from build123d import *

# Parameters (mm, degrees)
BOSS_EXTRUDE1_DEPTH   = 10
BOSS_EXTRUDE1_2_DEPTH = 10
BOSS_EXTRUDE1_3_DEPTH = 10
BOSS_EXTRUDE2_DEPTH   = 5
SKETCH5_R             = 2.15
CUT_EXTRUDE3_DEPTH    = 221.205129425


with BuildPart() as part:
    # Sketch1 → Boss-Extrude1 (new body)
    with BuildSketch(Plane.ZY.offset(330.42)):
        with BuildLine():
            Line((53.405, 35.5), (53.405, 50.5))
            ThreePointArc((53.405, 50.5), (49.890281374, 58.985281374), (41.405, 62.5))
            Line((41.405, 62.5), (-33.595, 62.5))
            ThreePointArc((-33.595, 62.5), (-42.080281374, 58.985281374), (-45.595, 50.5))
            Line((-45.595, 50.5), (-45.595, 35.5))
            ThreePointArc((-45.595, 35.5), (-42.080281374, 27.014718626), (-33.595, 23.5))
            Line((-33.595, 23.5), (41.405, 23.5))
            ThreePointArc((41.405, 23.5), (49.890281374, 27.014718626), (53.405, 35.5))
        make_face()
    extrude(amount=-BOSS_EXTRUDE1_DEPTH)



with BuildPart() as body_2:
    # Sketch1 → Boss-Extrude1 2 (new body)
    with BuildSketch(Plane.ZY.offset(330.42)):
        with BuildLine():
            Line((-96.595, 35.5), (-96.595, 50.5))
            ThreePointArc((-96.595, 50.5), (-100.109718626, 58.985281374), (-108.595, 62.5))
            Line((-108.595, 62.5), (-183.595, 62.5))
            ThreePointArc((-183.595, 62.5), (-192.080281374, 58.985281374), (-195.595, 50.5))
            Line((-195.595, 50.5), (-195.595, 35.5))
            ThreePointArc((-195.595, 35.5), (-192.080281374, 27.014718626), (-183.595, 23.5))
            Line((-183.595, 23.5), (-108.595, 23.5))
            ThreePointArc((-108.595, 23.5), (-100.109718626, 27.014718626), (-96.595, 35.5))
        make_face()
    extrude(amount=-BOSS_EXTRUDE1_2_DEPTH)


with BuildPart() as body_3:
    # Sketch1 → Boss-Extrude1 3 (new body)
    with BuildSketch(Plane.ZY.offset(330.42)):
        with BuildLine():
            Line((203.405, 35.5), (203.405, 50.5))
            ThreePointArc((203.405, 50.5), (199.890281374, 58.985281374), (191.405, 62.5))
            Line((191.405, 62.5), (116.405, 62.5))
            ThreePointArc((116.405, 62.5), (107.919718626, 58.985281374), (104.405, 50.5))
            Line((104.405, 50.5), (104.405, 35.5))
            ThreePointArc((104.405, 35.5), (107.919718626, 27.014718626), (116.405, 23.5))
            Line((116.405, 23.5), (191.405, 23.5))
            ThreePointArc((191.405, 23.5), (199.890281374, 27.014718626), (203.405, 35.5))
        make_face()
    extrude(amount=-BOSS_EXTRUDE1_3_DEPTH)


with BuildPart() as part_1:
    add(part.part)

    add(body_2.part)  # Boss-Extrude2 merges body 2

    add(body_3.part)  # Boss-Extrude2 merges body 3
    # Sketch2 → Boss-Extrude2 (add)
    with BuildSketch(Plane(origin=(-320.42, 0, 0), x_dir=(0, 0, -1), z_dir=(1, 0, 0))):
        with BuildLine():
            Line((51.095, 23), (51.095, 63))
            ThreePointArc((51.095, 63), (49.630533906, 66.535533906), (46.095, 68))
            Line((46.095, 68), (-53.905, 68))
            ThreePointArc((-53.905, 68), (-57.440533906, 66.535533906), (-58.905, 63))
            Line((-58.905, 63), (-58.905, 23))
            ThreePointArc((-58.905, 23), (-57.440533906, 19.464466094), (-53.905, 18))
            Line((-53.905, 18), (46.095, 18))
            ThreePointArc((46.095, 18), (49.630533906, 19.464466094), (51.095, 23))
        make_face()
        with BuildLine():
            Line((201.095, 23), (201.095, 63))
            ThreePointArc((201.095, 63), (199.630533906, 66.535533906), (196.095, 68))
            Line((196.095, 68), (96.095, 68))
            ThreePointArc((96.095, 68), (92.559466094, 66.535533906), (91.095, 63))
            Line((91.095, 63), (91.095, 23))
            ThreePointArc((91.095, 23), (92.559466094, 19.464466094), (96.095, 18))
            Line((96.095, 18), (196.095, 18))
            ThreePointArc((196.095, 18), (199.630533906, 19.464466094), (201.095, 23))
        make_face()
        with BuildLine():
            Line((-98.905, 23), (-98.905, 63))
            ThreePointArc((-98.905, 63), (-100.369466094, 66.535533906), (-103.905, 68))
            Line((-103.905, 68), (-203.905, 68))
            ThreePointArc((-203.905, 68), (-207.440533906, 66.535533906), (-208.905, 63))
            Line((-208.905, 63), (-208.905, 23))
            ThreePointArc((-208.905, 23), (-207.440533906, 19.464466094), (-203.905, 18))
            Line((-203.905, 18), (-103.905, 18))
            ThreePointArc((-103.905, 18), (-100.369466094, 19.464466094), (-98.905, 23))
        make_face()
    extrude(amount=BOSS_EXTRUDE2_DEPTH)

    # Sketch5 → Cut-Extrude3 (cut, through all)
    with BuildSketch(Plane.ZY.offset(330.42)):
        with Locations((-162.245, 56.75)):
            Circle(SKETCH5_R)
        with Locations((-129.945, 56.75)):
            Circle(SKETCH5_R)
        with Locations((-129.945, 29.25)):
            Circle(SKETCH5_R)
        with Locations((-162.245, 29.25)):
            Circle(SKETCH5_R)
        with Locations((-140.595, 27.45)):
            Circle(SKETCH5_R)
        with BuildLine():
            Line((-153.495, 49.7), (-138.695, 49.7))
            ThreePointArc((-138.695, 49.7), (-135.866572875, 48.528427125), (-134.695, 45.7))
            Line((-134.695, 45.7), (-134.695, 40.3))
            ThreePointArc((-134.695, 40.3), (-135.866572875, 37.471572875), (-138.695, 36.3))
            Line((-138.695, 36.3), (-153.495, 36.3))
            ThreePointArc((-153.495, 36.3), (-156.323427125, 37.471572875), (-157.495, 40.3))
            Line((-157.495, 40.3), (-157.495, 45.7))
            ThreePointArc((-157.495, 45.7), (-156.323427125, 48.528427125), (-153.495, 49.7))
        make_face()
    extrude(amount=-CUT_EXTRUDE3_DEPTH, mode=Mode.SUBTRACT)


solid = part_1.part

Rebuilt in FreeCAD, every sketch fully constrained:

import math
import FreeCAD as App
import Part
import Sketcher
Q = App.Units.Quantity

doc = App.newDocument("Part")
params = doc.addObject("Spreadsheet::Sheet", "Params")
for row, (alias, value) in enumerate([
    ("sketch1_radius", "12 mm"),
    ("sketch1_width", "15 mm"),
    ("sketch1_height", "75 mm"),
    ("pad1_length", "10 mm"),
    ("sketch2_radius", "12 mm"),
    ("sketch2_width", "15 mm"),
    ("sketch2_height", "75 mm"),
    ("pad2_length", "10 mm"),
    ("sketch3_radius", "12 mm"),
    ("sketch3_width", "15 mm"),
    ("sketch3_height", "75 mm"),
    ("pad3_length", "10 mm"),
    ("sketch4_radius", "5 mm"),
    ("sketch4_width", "40 mm"),
    ("sketch4_height", "100 mm"),
    ("pad4_length", "5 mm"),
    ("sketch5_radius", "4 mm"),
    ("sketch5_diameter", "4.3 mm"),
    ("sketch5_width", "5.4 mm"),
    ("sketch5_height", "14.8 mm"),
], start=1):
    params.set(f"A{row}", alias)
    params.set(f"B{row}", "=" + value)
    params.setAlias(f"B{row}", alias)

body = doc.addObject("PartDesign::Body", "Body")

# Sketch on YZ plane
sketch1 = body.newObject("Sketcher::SketchObject", "Sketch")
sketch1.AttachmentSupport = (doc.getObject("YZ_Plane"), [""])
sketch1.MapMode = "FlatFace"
sketch1.AttachmentOffset = App.Placement(App.Vector(0, 0, -330.42), App.Rotation())
sketch1.addGeometry([
    Part.LineSegment(App.Vector(36, 53, 0), App.Vector(50, 53, 0)),  # 0
    Part.ArcOfCircle(Part.Circle(App.Vector(50, 41, 0), App.Vector(0, 0, 1), 12), math.radians(0), math.radians(90)),  # 1
    Part.LineSegment(App.Vector(62, 41, 0), App.Vector(62, -34, 0)),  # 2
    Part.ArcOfCircle(Part.Circle(App.Vector(50, -34, 0), App.Vector(0, 0, 1), 12), math.radians(-90), math.radians(0)),  # 3
    Part.LineSegment(App.Vector(50, -46, 0), App.Vector(36, -46, 0)),  # 4
    Part.ArcOfCircle(Part.Circle(App.Vector(36, -34, 0), App.Vector(0, 0, 1), 12), math.radians(-180), math.radians(-90)),  # 5
    Part.LineSegment(App.Vector(24, -34, 0), App.Vector(24, 41, 0)),  # 6
    Part.ArcOfCircle(Part.Circle(App.Vector(36, 41, 0), App.Vector(0, 0, 1), 12), math.radians(90), math.radians(180)),  # 7
], False)
sketch1.addConstraint([
    Sketcher.Constraint("Tangent", 0, 2, 1, 2),
    Sketcher.Constraint("Tangent", 1, 1, 2, 1),
    Sketcher.Constraint("Tangent", 2, 2, 3, 2),
    Sketcher.Constraint("Tangent", 3, 1, 4, 1),
    Sketcher.Constraint("Tangent", 4, 2, 5, 2),
    Sketcher.Constraint("Tangent", 5, 1, 6, 1),
    Sketcher.Constraint("Tangent", 6, 2, 7, 2),
    Sketcher.Constraint("Tangent", 7, 1, 0, 1),
    Sketcher.Constraint("Horizontal", 0),
    Sketcher.Constraint("Vertical", 2),
    Sketcher.Constraint("Horizontal", 4),
    Sketcher.Constraint("Vertical", 6),
    Sketcher.Constraint("Equal", 1, 3),
    Sketcher.Constraint("Equal", 3, 5),
    Sketcher.Constraint("Equal", 5, 7),
    Sketcher.Constraint("Radius", 1, Q("12 mm")),
    Sketcher.Constraint("DistanceX", 0, 1, 0, 2, Q("15 mm")),
    Sketcher.Constraint("DistanceY", 2, 2, 2, 1, Q("75 mm")),
    Sketcher.Constraint("DistanceX", -1, 1, 1, 3, Q("50.5 mm")),
    Sketcher.Constraint("DistanceY", -1, 1, 1, 3, Q("41.405 mm")),
])
sketch1.setExpression("Constraints[15]", "Params.sketch1_radius")
sketch1.setExpression("Constraints[16]", "Params.sketch1_width")
sketch1.setExpression("Constraints[17]", "Params.sketch1_height")
pad1 = body.newObject("PartDesign::Pad", "Pad")
pad1.Profile = sketch1
pad1.setExpression("Length", "Params.pad1_length")
body2 = doc.addObject("PartDesign::Body", "Body001")

# Sketch on YZ plane
sketch2 = body2.newObject("Sketcher::SketchObject", "Sketch001")
sketch2.AttachmentSupport = (doc.getObject("YZ_Plane001"), [""])
sketch2.MapMode = "FlatFace"
sketch2.AttachmentOffset = App.Placement(App.Vector(0, 0, -330.42), App.Rotation())
sketch2.addGeometry([
    Part.LineSegment(App.Vector(36, -97, 0), App.Vector(50, -97, 0)),  # 0
    Part.ArcOfCircle(Part.Circle(App.Vector(50, -109, 0), App.Vector(0, 0, 1), 12), math.radians(0), math.radians(90)),  # 1
    Part.LineSegment(App.Vector(62, -109, 0), App.Vector(62, -184, 0)),  # 2
    Part.ArcOfCircle(Part.Circle(App.Vector(50, -184, 0), App.Vector(0, 0, 1), 12), math.radians(-90), math.radians(0)),  # 3
    Part.LineSegment(App.Vector(50, -196, 0), App.Vector(36, -196, 0)),  # 4
    Part.ArcOfCircle(Part.Circle(App.Vector(36, -184, 0), App.Vector(0, 0, 1), 12), math.radians(-180), math.radians(-90)),  # 5
    Part.LineSegment(App.Vector(24, -184, 0), App.Vector(24, -109, 0)),  # 6
    Part.ArcOfCircle(Part.Circle(App.Vector(36, -109, 0), App.Vector(0, 0, 1), 12), math.radians(90), math.radians(180)),  # 7
], False)
sketch2.addConstraint([
    Sketcher.Constraint("Tangent", 0, 2, 1, 2),
    Sketcher.Constraint("Tangent", 1, 1, 2, 1),
    Sketcher.Constraint("Tangent", 2, 2, 3, 2),
    Sketcher.Constraint("Tangent", 3, 1, 4, 1),
    Sketcher.Constraint("Tangent", 4, 2, 5, 2),
    Sketcher.Constraint("Tangent", 5, 1, 6, 1),
    Sketcher.Constraint("Tangent", 6, 2, 7, 2),
    Sketcher.Constraint("Tangent", 7, 1, 0, 1),
    Sketcher.Constraint("Horizontal", 0),
    Sketcher.Constraint("Vertical", 2),
    Sketcher.Constraint("Horizontal", 4),
    Sketcher.Constraint("Vertical", 6),
    Sketcher.Constraint("Equal", 1, 3),
    Sketcher.Constraint("Equal", 3, 5),
    Sketcher.Constraint("Equal", 5, 7),
    Sketcher.Constraint("Radius", 1, Q("12 mm")),
    Sketcher.Constraint("DistanceX", 0, 1, 0, 2, Q("15 mm")),
    Sketcher.Constraint("DistanceY", 2, 2, 2, 1, Q("75 mm")),
    Sketcher.Constraint("DistanceX", -1, 1, 1, 3, Q("50.5 mm")),
    Sketcher.Constraint("DistanceY", 1, 3, -1, 1, Q("108.595 mm")),
])
sketch2.setExpression("Constraints[15]", "Params.sketch2_radius")
sketch2.setExpression("Constraints[16]", "Params.sketch2_width")
sketch2.setExpression("Constraints[17]", "Params.sketch2_height")
pad2 = body2.newObject("PartDesign::Pad", "Pad001")
pad2.Profile = sketch2
pad2.setExpression("Length", "Params.pad2_length")
body3 = doc.addObject("PartDesign::Body", "Body002")

# Sketch on YZ plane
sketch3 = body3.newObject("Sketcher::SketchObject", "Sketch002")
sketch3.AttachmentSupport = (doc.getObject("YZ_Plane002"), [""])
sketch3.MapMode = "FlatFace"
sketch3.AttachmentOffset = App.Placement(App.Vector(0, 0, -330.42), App.Rotation())
sketch3.addGeometry([
    Part.LineSegment(App.Vector(36, 203, 0), App.Vector(50, 203, 0)),  # 0
    Part.ArcOfCircle(Part.Circle(App.Vector(50, 191, 0), App.Vector(0, 0, 1), 12), math.radians(0), math.radians(90)),  # 1
    Part.LineSegment(App.Vector(62, 191, 0), App.Vector(62, 116, 0)),  # 2
    Part.ArcOfCircle(Part.Circle(App.Vector(50, 116, 0), App.Vector(0, 0, 1), 12), math.radians(-90), math.radians(0)),  # 3
    Part.LineSegment(App.Vector(50, 104, 0), App.Vector(36, 104, 0)),  # 4
    Part.ArcOfCircle(Part.Circle(App.Vector(36, 116, 0), App.Vector(0, 0, 1), 12), math.radians(-180), math.radians(-90)),  # 5
    Part.LineSegment(App.Vector(24, 116, 0), App.Vector(24, 191, 0)),  # 6
    Part.ArcOfCircle(Part.Circle(App.Vector(36, 191, 0), App.Vector(0, 0, 1), 12), math.radians(90), math.radians(180)),  # 7
], False)
sketch3.addConstraint([
    Sketcher.Constraint("Tangent", 0, 2, 1, 2),
    Sketcher.Constraint("Tangent", 1, 1, 2, 1),
    Sketcher.Constraint("Tangent", 2, 2, 3, 2),
    Sketcher.Constraint("Tangent", 3, 1, 4, 1),
    Sketcher.Constraint("Tangent", 4, 2, 5, 2),
    Sketcher.Constraint("Tangent", 5, 1, 6, 1),
    Sketcher.Constraint("Tangent", 6, 2, 7, 2),
    Sketcher.Constraint("Tangent", 7, 1, 0, 1),
    Sketcher.Constraint("Horizontal", 0),
    Sketcher.Constraint("Vertical", 2),
    Sketcher.Constraint("Horizontal", 4),
    Sketcher.Constraint("Vertical", 6),
    Sketcher.Constraint("Equal", 1, 3),
    Sketcher.Constraint("Equal", 3, 5),
    Sketcher.Constraint("Equal", 5, 7),
    Sketcher.Constraint("Radius", 1, Q("12 mm")),
    Sketcher.Constraint("DistanceX", 0, 1, 0, 2, Q("15 mm")),
    Sketcher.Constraint("DistanceY", 2, 2, 2, 1, Q("75 mm")),
    Sketcher.Constraint("DistanceX", -1, 1, 1, 3, Q("50.5 mm")),
    Sketcher.Constraint("DistanceY", -1, 1, 1, 3, Q("191.405 mm")),
])
sketch3.setExpression("Constraints[15]", "Params.sketch3_radius")
sketch3.setExpression("Constraints[16]", "Params.sketch3_width")
sketch3.setExpression("Constraints[17]", "Params.sketch3_height")
pad3 = body3.newObject("PartDesign::Pad", "Pad002")
pad3.Profile = sketch3
pad3.setExpression("Length", "Params.pad3_length")
body.AllowCompound = True
doc.recompute()

boolean = body.newObject("PartDesign::Boolean", "Boolean")
boolean.Type = "Fuse"
boolean.addObjects([body2])
doc.recompute()

boolean2 = body.newObject("PartDesign::Boolean", "Boolean001")
boolean2.Type = "Fuse"
boolean2.addObjects([body3])

# Sketch on YZ plane
sketch4 = body.newObject("Sketcher::SketchObject", "Sketch003")
sketch4.AttachmentSupport = (doc.getObject("YZ_Plane"), [""])
sketch4.MapMode = "FlatFace"
sketch4.AttachmentOffset = App.Placement(App.Vector(0, 0, -320.42), App.Rotation())
sketch4.addGeometry([
    Part.LineSegment(App.Vector(23, -51, 0), App.Vector(63, -51, 0)),  # 0
    Part.ArcOfCircle(Part.Circle(App.Vector(63, -46, 0), App.Vector(0, 0, 1), 5), math.radians(-90), math.radians(0)),  # 1
    Part.LineSegment(App.Vector(68, -46, 0), App.Vector(68, 54, 0)),  # 2
    Part.ArcOfCircle(Part.Circle(App.Vector(63, 54, 0), App.Vector(0, 0, 1), 5), math.radians(0), math.radians(90)),  # 3
    Part.LineSegment(App.Vector(63, 59, 0), App.Vector(23, 59, 0)),  # 4
    Part.ArcOfCircle(Part.Circle(App.Vector(23, 54, 0), App.Vector(0, 0, 1), 5), math.radians(90), math.radians(180)),  # 5
    Part.LineSegment(App.Vector(18, 54, 0), App.Vector(18, -46, 0)),  # 6
    Part.ArcOfCircle(Part.Circle(App.Vector(23, -46, 0), App.Vector(0, 0, 1), 5), math.radians(180), math.radians(270)),  # 7
    Part.LineSegment(App.Vector(23, -201, 0), App.Vector(63, -201, 0)),  # 8
    Part.ArcOfCircle(Part.Circle(App.Vector(63, -196, 0), App.Vector(0, 0, 1), 5), math.radians(-90), math.radians(0)),  # 9
    Part.LineSegment(App.Vector(68, -196, 0), App.Vector(68, -96, 0)),  # 10
    Part.ArcOfCircle(Part.Circle(App.Vector(63, -96, 0), App.Vector(0, 0, 1), 5), math.radians(0), math.radians(90)),  # 11
    Part.LineSegment(App.Vector(63, -91, 0), App.Vector(23, -91, 0)),  # 12
    Part.ArcOfCircle(Part.Circle(App.Vector(23, -96, 0), App.Vector(0, 0, 1), 5), math.radians(90), math.radians(180)),  # 13
    Part.LineSegment(App.Vector(18, -96, 0), App.Vector(18, -196, 0)),  # 14
    Part.ArcOfCircle(Part.Circle(App.Vector(23, -196, 0), App.Vector(0, 0, 1), 5), math.radians(180), math.radians(270)),  # 15
    Part.LineSegment(App.Vector(23, 99, 0), App.Vector(63, 99, 0)),  # 16
    Part.ArcOfCircle(Part.Circle(App.Vector(63, 104, 0), App.Vector(0, 0, 1), 5), math.radians(-90), math.radians(0)),  # 17
    Part.LineSegment(App.Vector(68, 104, 0), App.Vector(68, 204, 0)),  # 18
    Part.ArcOfCircle(Part.Circle(App.Vector(63, 204, 0), App.Vector(0, 0, 1), 5), math.radians(0), math.radians(90)),  # 19
    Part.LineSegment(App.Vector(63, 209, 0), App.Vector(23, 209, 0)),  # 20
    Part.ArcOfCircle(Part.Circle(App.Vector(23, 204, 0), App.Vector(0, 0, 1), 5), math.radians(90), math.radians(180)),  # 21
    Part.LineSegment(App.Vector(18, 204, 0), App.Vector(18, 104, 0)),  # 22
    Part.ArcOfCircle(Part.Circle(App.Vector(23, 104, 0), App.Vector(0, 0, 1), 5), math.radians(180), math.radians(270)),  # 23
], False)
sketch4.addConstraint([
    Sketcher.Constraint("Tangent", 0, 2, 1, 1),
    Sketcher.Constraint("Tangent", 1, 2, 2, 1),
    Sketcher.Constraint("Tangent", 2, 2, 3, 1),
    Sketcher.Constraint("Tangent", 3, 2, 4, 1),
    Sketcher.Constraint("Tangent", 4, 2, 5, 1),
    Sketcher.Constraint("Tangent", 5, 2, 6, 1),
    Sketcher.Constraint("Tangent", 6, 2, 7, 1),
    Sketcher.Constraint("Tangent", 7, 2, 0, 1),
    Sketcher.Constraint("Tangent", 8, 2, 9, 1),
    Sketcher.Constraint("Tangent", 9, 2, 10, 1),
    Sketcher.Constraint("Tangent", 10, 2, 11, 1),
    Sketcher.Constraint("Tangent", 11, 2, 12, 1),
    Sketcher.Constraint("Tangent", 12, 2, 13, 1),
    Sketcher.Constraint("Tangent", 13, 2, 14, 1),
    Sketcher.Constraint("Tangent", 14, 2, 15, 1),
    Sketcher.Constraint("Tangent", 15, 2, 8, 1),
    Sketcher.Constraint("Tangent", 16, 2, 17, 1),
    Sketcher.Constraint("Tangent", 17, 2, 18, 1),
    Sketcher.Constraint("Tangent", 18, 2, 19, 1),
    Sketcher.Constraint("Tangent", 19, 2, 20, 1),
    Sketcher.Constraint("Tangent", 20, 2, 21, 1),
    Sketcher.Constraint("Tangent", 21, 2, 22, 1),
    Sketcher.Constraint("Tangent", 22, 2, 23, 1),
    Sketcher.Constraint("Tangent", 23, 2, 16, 1),
    Sketcher.Constraint("Horizontal", 0),
    Sketcher.Constraint("Vertical", 2),
    Sketcher.Constraint("Horizontal", 4),
    Sketcher.Constraint("Vertical", 6),
    Sketcher.Constraint("Horizontal", 8),
    Sketcher.Constraint("Vertical", 10),
    Sketcher.Constraint("Horizontal", 12),
    Sketcher.Constraint("Vertical", 14),
    Sketcher.Constraint("Horizontal", 16),
    Sketcher.Constraint("Vertical", 18),
    Sketcher.Constraint("Horizontal", 20),
    Sketcher.Constraint("Vertical", 22),
    Sketcher.Constraint("Equal", 1, 3),
    Sketcher.Constraint("Equal", 3, 5),
    Sketcher.Constraint("Equal", 5, 7),
    Sketcher.Constraint("Equal", 7, 9),
    Sketcher.Constraint("Equal", 9, 11),
    Sketcher.Constraint("Equal", 11, 13),
    Sketcher.Constraint("Equal", 13, 15),
    Sketcher.Constraint("Equal", 15, 17),
    Sketcher.Constraint("Equal", 17, 19),
    Sketcher.Constraint("Equal", 19, 21),
    Sketcher.Constraint("Equal", 21, 23),
    Sketcher.Constraint("Vertical", 3, 3, 9, 3),
    Sketcher.Constraint("Vertical", 7, 3, 13, 3),
    Sketcher.Constraint("Vertical", 11, 3, 17, 3),
    Sketcher.Constraint("Vertical", 15, 3, 21, 3),
    Sketcher.Constraint("Equal", 6, 10),
    Sketcher.Constraint("Equal", 14, 18),
    Sketcher.Constraint("Radius", 1, Q("5 mm")),
    Sketcher.Constraint("DistanceX", 0, 1, 0, 2, Q("40 mm")),
    Sketcher.Constraint("DistanceY", 2, 1, 2, 2, Q("100 mm")),
    Sketcher.Constraint("DistanceX", -1, 1, 1, 3, Q("63 mm")),
    Sketcher.Constraint("DistanceY", 9, 3, 1, 3, Q("150 mm")),
    Sketcher.Constraint("DistanceY", 3, 3, 17, 3, Q("50 mm")),
    Sketcher.Constraint("DistanceY", 1, 3, -1, 1, Q("46.095 mm")),
])
sketch4.setExpression("Constraints[53]", "Params.sketch4_radius")
sketch4.setExpression("Constraints[54]", "Params.sketch4_width")
sketch4.setExpression("Constraints[55]", "Params.sketch4_height")
pad4 = body.newObject("PartDesign::Pad", "Pad003")
pad4.Profile = sketch4
pad4.setExpression("Length", "Params.pad4_length")

# Sketch on YZ plane
sketch5 = body.newObject("Sketcher::SketchObject", "Sketch004")
sketch5.AttachmentSupport = (doc.getObject("YZ_Plane"), [""])
sketch5.MapMode = "FlatFace"
sketch5.AttachmentOffset = App.Placement(App.Vector(0, 0, -330.42), App.Rotation())
sketch5.addGeometry([
    Part.Circle(App.Vector(56.8, -162.2, 0), App.Vector(0, 0, 1), 2.1),  # 0
    Part.Circle(App.Vector(56.8, -129.9, 0), App.Vector(0, 0, 1), 2.1),  # 1
    Part.Circle(App.Vector(29.2, -129.9, 0), App.Vector(0, 0, 1), 2.1),  # 2
    Part.Circle(App.Vector(29.2, -162.2, 0), App.Vector(0, 0, 1), 2.1),  # 3
    Part.Circle(App.Vector(27.4, -140.6, 0), App.Vector(0, 0, 1), 2.1),  # 4
    Part.LineSegment(App.Vector(49.7, -138.7, 0), App.Vector(49.7, -153.5, 0)),  # 5
    Part.ArcOfCircle(Part.Circle(App.Vector(45.7, -153.5, 0), App.Vector(0, 0, 1), 4), math.radians(-90), math.radians(0)),  # 6
    Part.LineSegment(App.Vector(45.7, -157.5, 0), App.Vector(40.3, -157.5, 0)),  # 7
    Part.ArcOfCircle(Part.Circle(App.Vector(40.3, -153.5, 0), App.Vector(0, 0, 1), 4), math.radians(180), math.radians(270)),  # 8
    Part.LineSegment(App.Vector(36.3, -153.5, 0), App.Vector(36.3, -138.7, 0)),  # 9
    Part.ArcOfCircle(Part.Circle(App.Vector(40.3, -138.7, 0), App.Vector(0, 0, 1), 4), math.radians(90), math.radians(180)),  # 10
    Part.LineSegment(App.Vector(40.3, -134.7, 0), App.Vector(45.7, -134.7, 0)),  # 11
    Part.ArcOfCircle(Part.Circle(App.Vector(45.7, -138.7, 0), App.Vector(0, 0, 1), 4), math.radians(0), math.radians(90)),  # 12
], False)
sketch5.addConstraint([
    Sketcher.Constraint("Tangent", 5, 2, 6, 2),
    Sketcher.Constraint("Tangent", 6, 1, 7, 1),
    Sketcher.Constraint("Tangent", 7, 2, 8, 2),
    Sketcher.Constraint("Tangent", 8, 1, 9, 1),
    Sketcher.Constraint("Tangent", 9, 2, 10, 2),
    Sketcher.Constraint("Tangent", 10, 1, 11, 1),
    Sketcher.Constraint("Tangent", 11, 2, 12, 2),
    Sketcher.Constraint("Tangent", 12, 1, 5, 1),
    Sketcher.Constraint("Vertical", 5),
    Sketcher.Constraint("Horizontal", 7),
    Sketcher.Constraint("Vertical", 9),
    Sketcher.Constraint("Horizontal", 11),
    Sketcher.Constraint("Equal", 0, 1),
    Sketcher.Constraint("Equal", 1, 2),
    Sketcher.Constraint("Equal", 2, 3),
    Sketcher.Constraint("Equal", 3, 4),
    Sketcher.Constraint("Equal", 6, 8),
    Sketcher.Constraint("Equal", 8, 10),
    Sketcher.Constraint("Equal", 10, 12),
    Sketcher.Constraint("Horizontal", 1, 3, 2, 3),
    Sketcher.Constraint("Horizontal", 0, 3, 3, 3),
    Sketcher.Constraint("Vertical", 0, 3, 1, 3),
    Sketcher.Constraint("Vertical", 2, 3, 3, 3),
    Sketcher.Constraint("Radius", 6, Q("4 mm")),
    Sketcher.Constraint("Diameter", 0, Q("4.3 mm")),
    Sketcher.Constraint("DistanceX", 7, 2, 7, 1, Q("5.4 mm")),
    Sketcher.Constraint("DistanceY", 5, 2, 5, 1, Q("14.8 mm")),
    Sketcher.Constraint("DistanceX", -1, 1, 6, 3, Q("45.7 mm")),
    Sketcher.Constraint("DistanceY", 0, 3, 1, 3, Q("32.3 mm")),
    Sketcher.Constraint("DistanceX", 2, 3, 1, 3, Q("27.5 mm")),
    Sketcher.Constraint("DistanceX", 4, 3, 2, 3, Q("1.8 mm")),
    Sketcher.Constraint("DistanceY", 6, 3, 4, 3, Q("12.9 mm")),
    Sketcher.Constraint("DistanceX", -1, 1, 0, 3, Q("56.75 mm")),
    Sketcher.Constraint("DistanceY", 4, 3, 2, 3, Q("10.65 mm")),
    Sketcher.Constraint("DistanceY", 0, 3, -1, 1, Q("162.245 mm")),
])
sketch5.setExpression("Constraints[23]", "Params.sketch5_radius")
sketch5.setExpression("Constraints[24]", "Params.sketch5_diameter")
sketch5.setExpression("Constraints[25]", "Params.sketch5_width")
sketch5.setExpression("Constraints[26]", "Params.sketch5_height")
pocket1 = body.newObject("PartDesign::Pocket", "Pocket")
pocket1.Profile = sketch5
pocket1.Type = "ThroughAll"
pocket1.Reversed = True

doc.recompute()
